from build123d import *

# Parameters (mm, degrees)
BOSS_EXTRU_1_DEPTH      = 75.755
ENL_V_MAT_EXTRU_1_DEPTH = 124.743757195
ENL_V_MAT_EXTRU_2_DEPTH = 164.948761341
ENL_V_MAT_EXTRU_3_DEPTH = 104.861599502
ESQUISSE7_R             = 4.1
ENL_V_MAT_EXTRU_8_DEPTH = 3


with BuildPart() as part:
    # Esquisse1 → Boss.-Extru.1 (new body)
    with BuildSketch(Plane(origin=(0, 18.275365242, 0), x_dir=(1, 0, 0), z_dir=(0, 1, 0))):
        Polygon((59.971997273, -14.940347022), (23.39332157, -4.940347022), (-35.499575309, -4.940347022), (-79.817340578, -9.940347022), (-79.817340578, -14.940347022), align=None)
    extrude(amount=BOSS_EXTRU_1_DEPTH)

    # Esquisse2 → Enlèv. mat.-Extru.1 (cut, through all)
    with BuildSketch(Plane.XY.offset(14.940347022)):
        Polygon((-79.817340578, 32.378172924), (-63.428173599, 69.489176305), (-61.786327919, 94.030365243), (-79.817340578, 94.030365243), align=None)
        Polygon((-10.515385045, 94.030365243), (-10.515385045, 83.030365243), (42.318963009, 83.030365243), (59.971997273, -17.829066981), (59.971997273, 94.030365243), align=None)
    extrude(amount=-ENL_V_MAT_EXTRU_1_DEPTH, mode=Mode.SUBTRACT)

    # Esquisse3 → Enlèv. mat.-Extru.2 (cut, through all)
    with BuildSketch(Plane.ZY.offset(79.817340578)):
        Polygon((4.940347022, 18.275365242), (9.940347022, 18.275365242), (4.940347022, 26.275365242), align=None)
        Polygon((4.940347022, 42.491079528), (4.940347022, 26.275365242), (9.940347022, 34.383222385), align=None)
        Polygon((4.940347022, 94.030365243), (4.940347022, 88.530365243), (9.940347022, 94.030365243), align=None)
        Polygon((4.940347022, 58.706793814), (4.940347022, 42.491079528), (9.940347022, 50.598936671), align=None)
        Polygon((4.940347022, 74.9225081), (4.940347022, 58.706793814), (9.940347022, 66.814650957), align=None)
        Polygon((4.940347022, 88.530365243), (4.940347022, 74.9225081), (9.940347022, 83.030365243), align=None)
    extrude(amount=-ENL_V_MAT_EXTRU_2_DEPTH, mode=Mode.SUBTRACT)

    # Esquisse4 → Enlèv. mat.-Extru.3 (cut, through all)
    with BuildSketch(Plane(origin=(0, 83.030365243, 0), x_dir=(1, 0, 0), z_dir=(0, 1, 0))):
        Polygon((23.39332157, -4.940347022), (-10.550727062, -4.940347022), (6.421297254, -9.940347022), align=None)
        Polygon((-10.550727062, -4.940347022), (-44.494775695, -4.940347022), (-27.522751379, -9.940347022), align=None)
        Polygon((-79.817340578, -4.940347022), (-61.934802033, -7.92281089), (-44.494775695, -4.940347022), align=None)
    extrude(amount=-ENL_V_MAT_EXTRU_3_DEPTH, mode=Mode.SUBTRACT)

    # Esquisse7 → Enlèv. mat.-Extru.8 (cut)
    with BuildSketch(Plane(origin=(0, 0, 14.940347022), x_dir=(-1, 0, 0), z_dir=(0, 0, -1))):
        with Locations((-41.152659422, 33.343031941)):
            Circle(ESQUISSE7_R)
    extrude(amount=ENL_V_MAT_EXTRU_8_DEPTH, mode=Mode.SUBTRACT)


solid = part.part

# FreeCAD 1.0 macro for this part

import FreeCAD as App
import Part
import Sketcher
from FreeCAD import Vector
Q = App.Units.Quantity


def add_polygon(sketch, points):
    """Adds a closed chain of lines whose ends are joined by coincident constraints."""
    first, n = sketch.GeometryCount, len(points)
    for a, b in zip(points, points[1:] + points[:1]):
        sketch.addGeometry(Part.LineSegment(App.Vector(*a, 0), App.Vector(*b, 0)), False)
    for i in range(n):
        sketch.addConstraint(Sketcher.Constraint("Coincident", first + i, 2, first + (i + 1) % n, 1))

doc = App.newDocument("Part")
body = doc.addObject("PartDesign::Body", "Body")

sketch1 = body.newObject("Sketcher::SketchObject", "Sketch")
sketch1.AttachmentSupport = (doc.getObject("XZ_Plane"), [""])
sketch1.MapMode = "FlatFace"
sketch1.AttachmentOffset = App.Placement(Vector(0, 0, -18.275365), App.Rotation())
add_polygon(sketch1, [(59.971997, 14.940347), (23.393322, 4.940347), (-35.499575, 4.940347), (-79.817341, 9.940347), (-79.817341, 14.940347)])
sketch1.addConstraint([
    Sketcher.Constraint("Horizontal", 1),
    Sketcher.Constraint("Vertical", 3),
    Sketcher.Constraint("Horizontal", 4),
    Sketcher.Constraint("DistanceY", 3, 1, 3, 2, Q("5 mm")),
    Sketcher.Constraint("DistanceY", 1, 2, 2, 2, Q("5 mm")),
    Sketcher.Constraint("DistanceX", 1, 2, 1, 1, Q("58.892897 mm")),
    Sketcher.Constraint("DistanceX", 4, 1, 4, 2, Q("139.789338 mm")),
    Sketcher.Constraint("DistanceX", -1, 1, 0, 2, Q("23.393322 mm")),
    Sketcher.Constraint("DistanceX", 2, 2, -1, 1, Q("79.817341 mm")),
    Sketcher.Constraint("DistanceY", -1, 1, 0, 2, Q("4.940347 mm")),
])
pad1 = body.newObject("PartDesign::Pad", "Pad")
pad1.Profile = sketch1
pad1.Length = 75.755
pad1.Reversed = True

sketch2 = body.newObject("Sketcher::SketchObject", "Sketch001")
sketch2.AttachmentSupport = (doc.getObject("XY_Plane"), [""])
sketch2.MapMode = "FlatFace"
sketch2.AttachmentOffset = App.Placement(Vector(0, 0, 14.940347), App.Rotation())
add_polygon(sketch2, [(-79.817341, 32.378173), (-63.428174, 69.489176), (-61.786328, 94.030365), (-79.817341, 94.030365)])
add_polygon(sketch2, [(-10.515385, 94.030365), (-10.515385, 83.030365), (42.318963, 83.030365), (59.971997, -17.829067), (59.971997, 94.030365)])
sketch2.addConstraint([
    Sketcher.Constraint("Horizontal", 2),
    Sketcher.Constraint("Vertical", 3),
    Sketcher.Constraint("Vertical", 4),
    Sketcher.Constraint("Horizontal", 5),
    Sketcher.Constraint("Vertical", 7),
    Sketcher.Constraint("Horizontal", 8),
    Sketcher.Constraint("Horizontal", 2, 2, 7, 2),
    Sketcher.Constraint("DistanceY", 4, 2, 4, 1, Q("11 mm")),
    Sketcher.Constraint("DistanceX", 5, 1, 5, 2, Q("52.834348 mm")),
    Sketcher.Constraint("Distance", 1, Q("24.596049 mm")),
    Sketcher.Constraint("Distance", 6, Q("102.39265 mm")),
    Sketcher.Constraint("DistanceX", 2, 2, 2, 1, Q("18.031013 mm")),
    Sketcher.Constraint("DistanceX", 8, 2, 8, 1, Q("70.487382 mm")),
    Sketcher.Constraint("DistanceY", 3, 2, 3, 1, Q("61.652192 mm")),
    Sketcher.Constraint("DistanceX", 2, 2, -1, 1, Q("79.817341 mm")),
    Sketcher.Constraint("DistanceY", 0, 2, 1, 2, Q("24.541189 mm")),
    Sketcher.Constraint("DistanceX", 0, 2, 4, 2, Q("52.912789 mm")),
    Sketcher.Constraint("DistanceY", -1, 1, 0, 2, Q("69.489176 mm")),
])
pocket1 = body.newObject("PartDesign::Pocket", "Pocket")
pocket1.Profile = sketch2
pocket1.Type = "ThroughAll"

sketch3 = body.newObject("Sketcher::SketchObject", "Sketch002")
sketch3.AttachmentSupport = (doc.getObject("YZ_Plane"), [""])
sketch3.MapMode = "FlatFace"
sketch3.AttachmentOffset = App.Placement(Vector(0, 0, -79.817341), App.Rotation())
add_polygon(sketch3, [(18.275365, 4.940347), (18.275365, 9.940347), (26.275365, 4.940347)])
add_polygon(sketch3, [(42.49108, 4.940347), (26.275365, 4.940347), (34.383222, 9.940347)])
add_polygon(sketch3, [(94.030365, 4.940347), (88.530365, 4.940347), (94.030365, 9.940347)])
add_polygon(sketch3, [(58.706794, 4.940347), (42.49108, 4.940347), (50.598937, 9.940347)])
add_polygon(sketch3, [(74.922508, 4.940347), (58.706794, 4.940347), (66.814651, 9.940347)])
add_polygon(sketch3, [(88.530365, 4.940347), (74.922508, 4.940347), (83.030365, 9.940347)])
sketch3.addConstraint([
    Sketcher.Constraint("Vertical", 0),
    Sketcher.Constraint("Horizontal", 2),
    Sketcher.Constraint("Horizontal", 3),
    Sketcher.Constraint("Horizontal", 6),
    Sketcher.Constraint("Vertical", 8),
    Sketcher.Constraint("Horizontal", 9),
    Sketcher.Constraint("Horizontal", 12),
    Sketcher.Constraint("Horizontal", 15),
    Sketcher.Constraint("Coincident", 3, 2, 1, 2),
    Sketcher.Constraint("Coincident", 9, 2, 5, 2),
    Sketcher.Constraint("Coincident", 12, 2, 11, 2),
    Sketcher.Constraint("Coincident", 15, 2, 14, 2),
    Sketcher.Constraint("Coincident", 17, 2, 6, 2),
    Sketcher.Constraint("Parallel", 4, 10),
    Sketcher.Constraint("Parallel", 5, 11),
    Sketcher.Constraint("Parallel", 10, 13),
    Sketcher.Constraint("Parallel", 11, 14),
    Sketcher.Constraint("Parallel", 13, 16),
    Sketcher.Constraint("Horizontal", 0, 2, 4, 2),
    Sketcher.Constraint("Horizontal", 4, 2, 7, 2),
    Sketcher.Constraint("Horizontal", 7, 2, 10, 2),
    Sketcher.Constraint("Horizontal", 10, 2, 13, 2),
    Sketcher.Constraint("Horizontal", 13, 2, 16, 2),
    Sketcher.Constraint("Equal", 4, 5),
    Sketcher.Constraint("Equal", 7, 17),
    Sketcher.Constraint("DistanceX", 2, 2, 2, 1, Q("8 mm")),
    Sketcher.Constraint("DistanceY", 0, 1, 0, 2, Q("5 mm")),
    Sketcher.Constraint("DistanceX", 6, 2, 6, 1, Q("5.5 mm")),
    Sketcher.Constraint("DistanceX", 1, 2, 6, 2, Q("62.255 mm")),
    Sketcher.Constraint("DistanceX", -1, 1, 5, 2, Q("42.49108 mm")),
    Sketcher.Constraint("DistanceY", -1, 1, 0, 2, Q("9.940347 mm")),
])
pocket2 = body.newObject("PartDesign::Pocket", "Pocket001")
pocket2.Profile = sketch3
pocket2.Type = "ThroughAll"
pocket2.Reversed = True

sketch4 = body.newObject("Sketcher::SketchObject", "Sketch003")
sketch4.AttachmentSupport = (doc.getObject("XZ_Plane"), [""])
sketch4.MapMode = "FlatFace"
sketch4.AttachmentOffset = App.Placement(Vector(0, 0, -83.030365), App.Rotation())
add_polygon(sketch4, [(23.393322, 4.940347), (-10.550727, 4.940347), (6.421297, 9.940347)])
add_polygon(sketch4, [(-10.550727, 4.940347), (-44.494776, 4.940347), (-27.522751, 9.940347)])
add_polygon(sketch4, [(-79.817341, 4.940347), (-61.934802, 7.922811), (-44.494776, 4.940347)])
sketch4.addConstraint([
    Sketcher.Constraint("Horizontal", 0),
    Sketcher.Constraint("Horizontal", 3),
    Sketcher.Constraint("Horizontal", 8),
    Sketcher.Constraint("Coincident", 5, 2, 0, 2),
    Sketcher.Constraint("Coincident", 7, 2, 3, 2),
    Sketcher.Constraint("Parallel", 1, 4),
    Sketcher.Constraint("Parallel", 2, 5),
    Sketcher.Constraint("Horizontal", 1, 2, 4, 2),
    Sketcher.Constraint("Equal", 1, 2),
    Sketcher.Constraint("Equal", 5, 7),
    Sketcher.Constraint("DistanceY", 0, 2, 1, 2, Q("5 mm")),
    Sketcher.Constraint("DistanceX", 0, 2, 0, 1, Q("33.944049 mm")),
    Sketcher.Constraint("DistanceX", 6, 2, 1, 2, Q("68.356099 mm")),
    Sketcher.Constraint("Distance", 6, Q("18.129542 mm")),
    Sketcher.Constraint("DistanceX", -1, 1, 2, 2, Q("23.393322 mm")),
    Sketcher.Constraint("DistanceY", -1, 1, 6, 2, Q("7.922811 mm")),
])
pocket3 = body.newObject("PartDesign::Pocket", "Pocket002")
pocket3.Profile = sketch4
pocket3.Type = "ThroughAll"
pocket3.Reversed = True

sketch5 = body.newObject("Sketcher::SketchObject", "Sketch004")
sketch5.AttachmentSupport = (doc.getObject("XY_Plane"), [""])
sketch5.MapMode = "FlatFace"
sketch5.AttachmentOffset = App.Placement(Vector(0, 0, 14.940347), App.Rotation())
sketch5.addGeometry(Part.Circle(Vector(41.152659, 33.343032, 0), Vector(0, 0, 1), 4.1), False)
sketch5.addConstraint([
    Sketcher.Constraint("Diameter", 0, Q("8.2 mm")),
    Sketcher.Constraint("DistanceX", -1, 1, 0, 3, Q("41.152659 mm")),
    Sketcher.Constraint("DistanceY", -1, 1, 0, 3, Q("33.343032 mm")),
])
pocket4 = body.newObject("PartDesign::Pocket", "Pocket003")
pocket4.Profile = sketch5
pocket4.Length = 3

doc.recompute()
